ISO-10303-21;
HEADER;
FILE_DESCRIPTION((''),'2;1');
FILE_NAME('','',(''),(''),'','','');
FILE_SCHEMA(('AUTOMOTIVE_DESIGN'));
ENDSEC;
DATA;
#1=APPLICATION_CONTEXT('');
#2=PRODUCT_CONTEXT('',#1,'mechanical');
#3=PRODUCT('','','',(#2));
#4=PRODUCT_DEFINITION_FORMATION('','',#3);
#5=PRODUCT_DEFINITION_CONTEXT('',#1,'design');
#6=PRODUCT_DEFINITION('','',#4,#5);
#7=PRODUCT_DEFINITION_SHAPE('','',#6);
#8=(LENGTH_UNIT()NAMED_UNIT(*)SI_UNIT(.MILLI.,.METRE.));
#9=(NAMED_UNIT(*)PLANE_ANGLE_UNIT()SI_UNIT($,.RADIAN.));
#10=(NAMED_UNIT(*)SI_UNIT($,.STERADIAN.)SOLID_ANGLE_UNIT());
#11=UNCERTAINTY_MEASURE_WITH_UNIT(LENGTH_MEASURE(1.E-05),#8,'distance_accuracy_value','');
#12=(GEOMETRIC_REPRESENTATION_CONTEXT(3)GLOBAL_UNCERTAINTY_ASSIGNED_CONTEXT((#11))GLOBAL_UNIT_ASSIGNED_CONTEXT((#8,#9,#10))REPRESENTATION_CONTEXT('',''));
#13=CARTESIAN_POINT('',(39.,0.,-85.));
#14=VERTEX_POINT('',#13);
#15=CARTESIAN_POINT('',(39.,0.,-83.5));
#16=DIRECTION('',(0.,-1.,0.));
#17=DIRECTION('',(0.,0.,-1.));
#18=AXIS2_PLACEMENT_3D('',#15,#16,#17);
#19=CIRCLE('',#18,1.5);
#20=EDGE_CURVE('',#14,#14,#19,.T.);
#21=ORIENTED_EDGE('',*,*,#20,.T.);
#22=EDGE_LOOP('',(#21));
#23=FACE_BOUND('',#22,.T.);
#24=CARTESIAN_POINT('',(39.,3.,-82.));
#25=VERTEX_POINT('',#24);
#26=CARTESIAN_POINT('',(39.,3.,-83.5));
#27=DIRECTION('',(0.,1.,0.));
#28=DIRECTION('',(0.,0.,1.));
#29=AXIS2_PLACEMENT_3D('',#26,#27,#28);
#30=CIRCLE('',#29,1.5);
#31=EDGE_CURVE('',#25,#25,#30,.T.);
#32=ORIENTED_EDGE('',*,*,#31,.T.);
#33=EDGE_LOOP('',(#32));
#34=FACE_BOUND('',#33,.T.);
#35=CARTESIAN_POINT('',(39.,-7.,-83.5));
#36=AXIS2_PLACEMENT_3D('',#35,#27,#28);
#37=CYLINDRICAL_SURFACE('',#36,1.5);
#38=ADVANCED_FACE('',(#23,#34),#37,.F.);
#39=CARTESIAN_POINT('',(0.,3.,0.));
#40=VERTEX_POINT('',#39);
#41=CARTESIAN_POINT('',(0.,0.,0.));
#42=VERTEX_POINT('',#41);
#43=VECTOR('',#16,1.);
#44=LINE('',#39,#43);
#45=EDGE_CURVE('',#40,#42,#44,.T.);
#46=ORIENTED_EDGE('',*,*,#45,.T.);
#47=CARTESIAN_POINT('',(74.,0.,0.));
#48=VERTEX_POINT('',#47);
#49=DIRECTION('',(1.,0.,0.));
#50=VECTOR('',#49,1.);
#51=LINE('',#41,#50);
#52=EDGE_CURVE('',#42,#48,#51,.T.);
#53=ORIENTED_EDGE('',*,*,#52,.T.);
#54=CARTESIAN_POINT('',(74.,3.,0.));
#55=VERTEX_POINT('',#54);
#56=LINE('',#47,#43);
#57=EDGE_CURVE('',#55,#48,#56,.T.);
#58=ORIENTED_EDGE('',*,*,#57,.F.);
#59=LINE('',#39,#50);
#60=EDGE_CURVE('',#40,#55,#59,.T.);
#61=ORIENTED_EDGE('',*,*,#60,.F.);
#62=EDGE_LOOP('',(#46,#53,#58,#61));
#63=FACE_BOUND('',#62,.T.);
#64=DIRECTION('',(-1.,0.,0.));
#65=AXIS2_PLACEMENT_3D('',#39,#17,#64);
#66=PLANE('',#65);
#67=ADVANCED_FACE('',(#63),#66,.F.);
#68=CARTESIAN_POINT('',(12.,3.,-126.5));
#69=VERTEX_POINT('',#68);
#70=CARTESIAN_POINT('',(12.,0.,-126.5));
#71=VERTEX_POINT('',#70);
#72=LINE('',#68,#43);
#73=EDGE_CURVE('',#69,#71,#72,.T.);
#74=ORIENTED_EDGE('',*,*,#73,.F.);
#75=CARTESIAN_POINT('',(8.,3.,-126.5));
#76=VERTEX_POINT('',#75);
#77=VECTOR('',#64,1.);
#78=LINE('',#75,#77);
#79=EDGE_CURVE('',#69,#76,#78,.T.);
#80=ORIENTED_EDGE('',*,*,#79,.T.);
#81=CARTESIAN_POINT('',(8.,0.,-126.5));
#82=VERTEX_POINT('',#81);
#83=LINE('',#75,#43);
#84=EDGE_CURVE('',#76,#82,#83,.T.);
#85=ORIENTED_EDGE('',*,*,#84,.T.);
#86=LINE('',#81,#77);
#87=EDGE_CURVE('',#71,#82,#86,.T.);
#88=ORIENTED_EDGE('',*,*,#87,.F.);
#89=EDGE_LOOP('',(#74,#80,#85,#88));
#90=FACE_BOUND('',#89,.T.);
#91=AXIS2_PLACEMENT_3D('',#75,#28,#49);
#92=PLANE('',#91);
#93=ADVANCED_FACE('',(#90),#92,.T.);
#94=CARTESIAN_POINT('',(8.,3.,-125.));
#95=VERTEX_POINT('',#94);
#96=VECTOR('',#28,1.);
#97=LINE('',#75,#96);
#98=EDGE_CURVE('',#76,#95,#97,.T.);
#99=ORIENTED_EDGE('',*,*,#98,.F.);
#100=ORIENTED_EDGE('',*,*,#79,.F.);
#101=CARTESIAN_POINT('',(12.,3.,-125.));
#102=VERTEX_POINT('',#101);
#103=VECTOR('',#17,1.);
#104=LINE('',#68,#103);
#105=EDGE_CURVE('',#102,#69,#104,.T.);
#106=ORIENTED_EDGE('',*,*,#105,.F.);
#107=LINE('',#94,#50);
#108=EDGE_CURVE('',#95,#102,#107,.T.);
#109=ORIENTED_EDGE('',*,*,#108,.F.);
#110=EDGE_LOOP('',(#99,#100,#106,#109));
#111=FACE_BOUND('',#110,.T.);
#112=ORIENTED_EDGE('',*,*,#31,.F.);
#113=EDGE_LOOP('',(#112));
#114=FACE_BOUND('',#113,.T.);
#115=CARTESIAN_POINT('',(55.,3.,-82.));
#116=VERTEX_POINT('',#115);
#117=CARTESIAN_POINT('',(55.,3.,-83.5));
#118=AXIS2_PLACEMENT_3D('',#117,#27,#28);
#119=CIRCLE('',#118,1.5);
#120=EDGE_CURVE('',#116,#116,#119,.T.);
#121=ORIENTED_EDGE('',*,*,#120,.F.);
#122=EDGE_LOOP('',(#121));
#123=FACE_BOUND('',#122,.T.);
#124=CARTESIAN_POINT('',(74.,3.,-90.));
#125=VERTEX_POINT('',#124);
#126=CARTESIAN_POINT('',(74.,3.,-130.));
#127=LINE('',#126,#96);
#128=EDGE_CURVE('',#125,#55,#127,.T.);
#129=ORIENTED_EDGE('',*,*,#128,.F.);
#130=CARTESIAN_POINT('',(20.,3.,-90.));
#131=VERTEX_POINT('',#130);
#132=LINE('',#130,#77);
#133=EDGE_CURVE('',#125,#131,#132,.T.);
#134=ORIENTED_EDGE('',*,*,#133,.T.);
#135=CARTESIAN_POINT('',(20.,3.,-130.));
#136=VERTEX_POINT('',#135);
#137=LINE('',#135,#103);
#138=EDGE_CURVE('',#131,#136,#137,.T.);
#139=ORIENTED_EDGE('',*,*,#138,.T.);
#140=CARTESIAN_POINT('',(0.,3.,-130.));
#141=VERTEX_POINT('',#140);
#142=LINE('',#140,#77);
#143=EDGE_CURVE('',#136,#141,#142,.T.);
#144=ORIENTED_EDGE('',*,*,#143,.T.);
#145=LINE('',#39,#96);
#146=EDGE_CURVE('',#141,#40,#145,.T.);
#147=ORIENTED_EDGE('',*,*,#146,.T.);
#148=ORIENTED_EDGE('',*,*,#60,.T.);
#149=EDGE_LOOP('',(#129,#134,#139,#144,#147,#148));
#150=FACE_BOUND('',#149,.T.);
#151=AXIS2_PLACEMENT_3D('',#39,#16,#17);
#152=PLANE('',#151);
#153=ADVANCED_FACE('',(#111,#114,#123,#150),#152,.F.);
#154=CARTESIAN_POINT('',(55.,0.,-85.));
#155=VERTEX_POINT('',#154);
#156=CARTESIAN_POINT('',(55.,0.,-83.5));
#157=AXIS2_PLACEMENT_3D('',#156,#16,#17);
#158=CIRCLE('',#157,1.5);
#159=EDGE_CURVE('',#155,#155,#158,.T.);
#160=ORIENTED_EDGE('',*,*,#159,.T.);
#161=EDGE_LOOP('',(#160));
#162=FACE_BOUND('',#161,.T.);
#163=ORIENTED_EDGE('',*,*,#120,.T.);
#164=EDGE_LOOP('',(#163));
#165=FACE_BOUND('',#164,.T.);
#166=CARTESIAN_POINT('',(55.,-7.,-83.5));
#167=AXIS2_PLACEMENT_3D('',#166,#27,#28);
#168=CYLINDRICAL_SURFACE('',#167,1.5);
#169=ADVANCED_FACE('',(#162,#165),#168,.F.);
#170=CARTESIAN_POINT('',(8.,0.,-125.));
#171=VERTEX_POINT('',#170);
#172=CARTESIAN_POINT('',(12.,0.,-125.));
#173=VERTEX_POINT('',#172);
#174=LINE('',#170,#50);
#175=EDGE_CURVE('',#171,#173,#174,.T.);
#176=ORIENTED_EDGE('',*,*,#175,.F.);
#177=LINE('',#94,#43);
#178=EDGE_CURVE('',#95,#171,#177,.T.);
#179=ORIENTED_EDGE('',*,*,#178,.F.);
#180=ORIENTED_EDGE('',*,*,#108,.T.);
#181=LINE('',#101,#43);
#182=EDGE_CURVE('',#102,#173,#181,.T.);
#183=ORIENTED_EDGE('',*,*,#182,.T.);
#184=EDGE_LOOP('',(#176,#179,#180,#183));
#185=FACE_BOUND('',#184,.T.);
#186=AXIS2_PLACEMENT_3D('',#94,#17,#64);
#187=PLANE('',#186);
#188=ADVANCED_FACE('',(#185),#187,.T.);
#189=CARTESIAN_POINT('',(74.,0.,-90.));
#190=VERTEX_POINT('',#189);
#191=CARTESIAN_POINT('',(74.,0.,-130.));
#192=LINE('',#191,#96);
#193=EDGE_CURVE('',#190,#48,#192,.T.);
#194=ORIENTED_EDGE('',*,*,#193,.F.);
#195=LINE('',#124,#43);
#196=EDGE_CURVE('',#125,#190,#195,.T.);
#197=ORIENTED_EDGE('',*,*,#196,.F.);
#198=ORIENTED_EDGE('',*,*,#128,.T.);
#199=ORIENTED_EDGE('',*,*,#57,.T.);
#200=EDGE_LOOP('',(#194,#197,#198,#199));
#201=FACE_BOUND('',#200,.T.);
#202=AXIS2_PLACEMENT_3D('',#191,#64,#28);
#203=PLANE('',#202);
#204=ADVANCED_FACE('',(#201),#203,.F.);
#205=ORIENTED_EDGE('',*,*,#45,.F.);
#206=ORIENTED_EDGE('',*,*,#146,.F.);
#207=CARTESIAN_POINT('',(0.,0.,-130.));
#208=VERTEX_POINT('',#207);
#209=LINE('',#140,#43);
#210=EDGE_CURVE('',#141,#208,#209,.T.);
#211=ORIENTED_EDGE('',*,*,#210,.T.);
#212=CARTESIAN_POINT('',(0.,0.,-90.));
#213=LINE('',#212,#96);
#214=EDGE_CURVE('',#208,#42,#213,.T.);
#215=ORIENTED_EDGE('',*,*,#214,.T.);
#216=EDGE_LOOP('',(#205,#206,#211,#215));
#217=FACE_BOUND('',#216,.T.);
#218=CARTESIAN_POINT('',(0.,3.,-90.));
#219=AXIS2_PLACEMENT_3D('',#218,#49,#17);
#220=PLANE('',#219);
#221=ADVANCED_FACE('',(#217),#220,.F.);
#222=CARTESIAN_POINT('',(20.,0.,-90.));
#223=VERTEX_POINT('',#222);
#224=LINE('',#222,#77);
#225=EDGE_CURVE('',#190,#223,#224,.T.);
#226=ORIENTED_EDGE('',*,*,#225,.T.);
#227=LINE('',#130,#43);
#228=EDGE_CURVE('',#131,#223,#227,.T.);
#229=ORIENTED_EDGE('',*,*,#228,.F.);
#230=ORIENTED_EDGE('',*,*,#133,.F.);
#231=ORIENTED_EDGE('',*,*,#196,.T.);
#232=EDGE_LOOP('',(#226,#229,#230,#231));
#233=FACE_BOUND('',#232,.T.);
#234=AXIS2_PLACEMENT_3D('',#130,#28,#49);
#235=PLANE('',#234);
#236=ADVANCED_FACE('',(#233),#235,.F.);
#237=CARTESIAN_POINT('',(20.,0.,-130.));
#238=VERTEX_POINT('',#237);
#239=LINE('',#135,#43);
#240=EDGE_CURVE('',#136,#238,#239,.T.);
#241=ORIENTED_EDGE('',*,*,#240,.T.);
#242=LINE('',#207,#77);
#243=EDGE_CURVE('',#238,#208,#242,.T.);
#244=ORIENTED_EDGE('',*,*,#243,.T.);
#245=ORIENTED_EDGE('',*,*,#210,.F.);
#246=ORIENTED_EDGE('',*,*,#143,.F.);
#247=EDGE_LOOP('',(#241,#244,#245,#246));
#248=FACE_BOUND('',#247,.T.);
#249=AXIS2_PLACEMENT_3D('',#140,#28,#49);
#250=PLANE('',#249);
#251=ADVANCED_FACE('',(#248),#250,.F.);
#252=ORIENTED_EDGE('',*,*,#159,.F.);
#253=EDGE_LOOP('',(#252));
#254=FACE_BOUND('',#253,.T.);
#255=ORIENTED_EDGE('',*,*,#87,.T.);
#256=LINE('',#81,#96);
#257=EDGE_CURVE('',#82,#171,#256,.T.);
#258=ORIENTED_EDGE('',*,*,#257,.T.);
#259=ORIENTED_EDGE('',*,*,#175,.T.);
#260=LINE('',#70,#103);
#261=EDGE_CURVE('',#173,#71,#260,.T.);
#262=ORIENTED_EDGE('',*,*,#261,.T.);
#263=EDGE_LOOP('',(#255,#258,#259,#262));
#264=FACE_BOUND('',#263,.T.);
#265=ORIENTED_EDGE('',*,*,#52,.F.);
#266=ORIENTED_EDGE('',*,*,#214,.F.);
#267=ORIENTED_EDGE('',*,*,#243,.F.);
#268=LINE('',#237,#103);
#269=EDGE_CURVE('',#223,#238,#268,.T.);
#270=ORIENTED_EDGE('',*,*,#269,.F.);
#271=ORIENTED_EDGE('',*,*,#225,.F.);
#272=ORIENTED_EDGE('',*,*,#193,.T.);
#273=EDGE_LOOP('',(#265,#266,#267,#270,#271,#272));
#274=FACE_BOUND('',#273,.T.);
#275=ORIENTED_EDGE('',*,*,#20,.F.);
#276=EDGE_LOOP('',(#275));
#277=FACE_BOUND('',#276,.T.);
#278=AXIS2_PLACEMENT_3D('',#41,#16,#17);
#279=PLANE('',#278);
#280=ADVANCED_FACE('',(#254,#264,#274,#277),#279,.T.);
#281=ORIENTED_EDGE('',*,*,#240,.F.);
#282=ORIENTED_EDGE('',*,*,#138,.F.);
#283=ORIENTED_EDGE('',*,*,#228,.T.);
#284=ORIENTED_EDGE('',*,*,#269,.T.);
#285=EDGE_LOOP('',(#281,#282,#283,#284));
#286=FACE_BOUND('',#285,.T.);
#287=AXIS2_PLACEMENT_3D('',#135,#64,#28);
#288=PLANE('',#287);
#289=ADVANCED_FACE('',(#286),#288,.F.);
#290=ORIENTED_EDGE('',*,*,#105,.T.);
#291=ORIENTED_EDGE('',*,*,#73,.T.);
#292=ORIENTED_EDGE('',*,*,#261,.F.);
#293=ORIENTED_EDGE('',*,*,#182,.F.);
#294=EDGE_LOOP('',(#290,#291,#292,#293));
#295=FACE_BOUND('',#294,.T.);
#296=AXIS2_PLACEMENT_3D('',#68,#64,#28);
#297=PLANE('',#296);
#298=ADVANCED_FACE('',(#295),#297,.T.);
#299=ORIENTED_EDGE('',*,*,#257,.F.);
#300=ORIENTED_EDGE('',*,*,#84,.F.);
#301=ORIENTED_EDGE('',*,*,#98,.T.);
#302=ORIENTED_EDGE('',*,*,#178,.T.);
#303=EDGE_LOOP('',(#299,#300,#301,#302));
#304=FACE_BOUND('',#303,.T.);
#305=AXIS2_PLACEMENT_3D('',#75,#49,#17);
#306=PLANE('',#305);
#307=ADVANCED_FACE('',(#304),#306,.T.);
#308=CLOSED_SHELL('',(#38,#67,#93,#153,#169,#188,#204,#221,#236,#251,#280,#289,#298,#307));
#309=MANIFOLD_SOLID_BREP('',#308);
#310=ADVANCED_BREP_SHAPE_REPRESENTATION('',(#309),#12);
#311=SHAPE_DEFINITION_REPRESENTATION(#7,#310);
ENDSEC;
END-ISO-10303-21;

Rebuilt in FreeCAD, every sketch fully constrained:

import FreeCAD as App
import Part
import Sketcher
from FreeCAD import Vector

doc = App.newDocument("Part")
body = doc.addObject("PartDesign::Body", "Body")

sketch1 = body.newObject("Sketcher::SketchObject", "Sketch")
sketch1.AttachmentSupport = (doc.getObject("XZ_Plane"), [""])
sketch1.MapMode = "FlatFace"
sketch1.addGeometry(Part.LineSegment(Vector(0, -130, 0), Vector(0, 0, 0)), False)
sketch1.addGeometry(Part.LineSegment(Vector(0, 0, 0), Vector(89, 0, 0)), False)
sketch1.addGeometry(Part.LineSegment(Vector(89, 0, 0), Vector(89, -90, 0)), False)
sketch1.addGeometry(Part.LineSegment(Vector(89, -90, 0), Vector(20, -90, 0)), False)
sketch1.addGeometry(Part.LineSegment(Vector(20, -90, 0), Vector(20, -130, 0)), False)
sketch1.addGeometry(Part.LineSegment(Vector(20, -130, 0), Vector(0, -130, 0)), False)
sketch1.addGeometry(Part.LineSegment(Vector(8, -125, 0), Vector(8, -126.5, 0)), False)
sketch1.addGeometry(Part.LineSegment(Vector(8, -126.5, 0), Vector(12, -126.5, 0)), False)
sketch1.addGeometry(Part.LineSegment(Vector(12, -126.5, 0), Vector(12, -125, 0)), False)
sketch1.addGeometry(Part.LineSegment(Vector(12, -125, 0), Vector(8, -125, 0)), False)
sketch1.addConstraint(Sketcher.Constraint("Coincident", 0, 2, 1, 1))
sketch1.addConstraint(Sketcher.Constraint("Coincident", 1, 2, 2, 1))
sketch1.addConstraint(Sketcher.Constraint("Coincident", 2, 2, 3, 1))
sketch1.addConstraint(Sketcher.Constraint("Coincident", 3, 2, 4, 1))
sketch1.addConstraint(Sketcher.Constraint("Coincident", 4, 2, 5, 1))
sketch1.addConstraint(Sketcher.Constraint("Coincident", 5, 2, 0, 1))
sketch1.addConstraint(Sketcher.Constraint("Coincident", 6, 2, 7, 1))
sketch1.addConstraint(Sketcher.Constraint("Coincident", 7, 2, 8, 1))
sketch1.addConstraint(Sketcher.Constraint("Coincident", 8, 2, 9, 1))
sketch1.addConstraint(Sketcher.Constraint("Coincident", 9, 2, 6, 1))
sketch1.addConstraint(Sketcher.Constraint("Vertical", 0))
sketch1.addConstraint(Sketcher.Constraint("Horizontal", 1))
sketch1.addConstraint(Sketcher.Constraint("Vertical", 2))
sketch1.addConstraint(Sketcher.Constraint("Horizontal", 3))
sketch1.addConstraint(Sketcher.Constraint("Vertical", 4))
sketch1.addConstraint(Sketcher.Constraint("Horizontal", 5))
sketch1.addConstraint(Sketcher.Constraint("Vertical", 6))
sketch1.addConstraint(Sketcher.Constraint("Horizontal", 7))
sketch1.addConstraint(Sketcher.Constraint("Vertical", 8))
sketch1.addConstraint(Sketcher.Constraint("Horizontal", 9))
sketch1.addConstraint(Sketcher.Constraint("Coincident", 0, 2, -1, 1))
sketch1.addConstraint(Sketcher.Constraint("DistanceX", 1, 1, 1, 2, 89.0))
sketch1.addConstraint(Sketcher.Constraint("DistanceX", 3, 2, 3, 1, 69.0))
sketch1.addConstraint(Sketcher.Constraint("DistanceX", 7, 1, 7, 2, 4.0))
sketch1.addConstraint(Sketcher.Constraint("DistanceY", 0, 1, 0, 2, 130.0))
sketch1.addConstraint(Sketcher.Constraint("DistanceY", 2, 2, 2, 1, 90.0))
sketch1.addConstraint(Sketcher.Constraint("DistanceY", 6, 2, 6, 1, 1.5))
sketch1.addConstraint(Sketcher.Constraint("DistanceX", -1, 1, 6, 2, 8.0))
sketch1.addConstraint(Sketcher.Constraint("DistanceY", 8, 2, -1, 1, 125.0))
pad1 = body.newObject("PartDesign::Pad", "Pad")
pad1.Profile = sketch1
pad1.Length = 3
pad1.Reversed = True

sketch2 = body.newObject("Sketcher::SketchObject", "Sketch001")
sketch2.AttachmentSupport = (doc.getObject("XY_Plane"), [""])
sketch2.MapMode = "FlatFace"
sketch2.addGeometry(Part.LineSegment(Vector(74, 3, 0), Vector(74, 0, 0)), False)
sketch2.addGeometry(Part.LineSegment(Vector(74, 0, 0), Vector(89, 0, 0)), False)
sketch2.addGeometry(Part.LineSegment(Vector(89, 0, 0), Vector(89, 3, 0)), False)
sketch2.addGeometry(Part.LineSegment(Vector(89, 3, 0), Vector(74, 3, 0)), False)
sketch2.addConstraint(Sketcher.Constraint("Coincident", 0, 2, 1, 1))
sketch2.addConstraint(Sketcher.Constraint("Coincident", 1, 2, 2, 1))
sketch2.addConstraint(Sketcher.Constraint("Coincident", 2, 2, 3, 1))
sketch2.addConstraint(Sketcher.Constraint("Coincident", 3, 2, 0, 1))
sketch2.addConstraint(Sketcher.Constraint("Vertical", 0))
sketch2.addConstraint(Sketcher.Constraint("Horizontal", 1))
sketch2.addConstraint(Sketcher.Constraint("Vertical", 2))
sketch2.addConstraint(Sketcher.Constraint("Horizontal", 3))
sketch2.addConstraint(Sketcher.Constraint("PointOnObject", 0, 2, -1))
sketch2.addConstraint(Sketcher.Constraint("DistanceX", 1, 1, 1, 2, 15.0))
sketch2.addConstraint(Sketcher.Constraint("DistanceY", 0, 2, 0, 1, 3.0))
sketch2.addConstraint(Sketcher.Constraint("DistanceX", -1, 1, 0, 2, 74.0))
pocket1 = body.newObject("PartDesign::Pocket", "Pocket")
pocket1.Profile = sketch2
pocket1.Type = "ThroughAll"

sketch3 = body.newObject("Sketcher::SketchObject", "Sketch002")
sketch3.AttachmentSupport = (doc.getObject("XZ_Plane"), [""])
sketch3.MapMode = "FlatFace"
sketch3.AttachmentOffset = App.Placement(Vector(0, 0, -3), App.Rotation())
sketch3.addGeometry(Part.Circle(Vector(39, -83.5, 0), Vector(0, 0, 1), 1.5), False)
sketch3.addGeometry(Part.Circle(Vector(55, -83.5, 0), Vector(0, 0, 1), 1.5), False)
sketch3.addConstraint(Sketcher.Constraint("Equal", 0, 1))
sketch3.addConstraint(Sketcher.Constraint("Horizontal", 0, 3, 1, 3))
sketch3.addConstraint(Sketcher.Constraint("Diameter", 0, 3.0))
sketch3.addConstraint(Sketcher.Constraint("DistanceX", -1, 1, 0, 3, 39.0))
sketch3.addConstraint(Sketcher.Constraint("DistanceX", -1, 1, 1, 3, 55.0))
sketch3.addConstraint(Sketcher.Constraint("DistanceY", 0, 3, -1, 1, 83.5))
pocket2 = body.newObject("PartDesign::Pocket", "Pocket001")
pocket2.Profile = sketch3
pocket2.Length = 10
pocket2.Reversed = True

doc.recompute()
